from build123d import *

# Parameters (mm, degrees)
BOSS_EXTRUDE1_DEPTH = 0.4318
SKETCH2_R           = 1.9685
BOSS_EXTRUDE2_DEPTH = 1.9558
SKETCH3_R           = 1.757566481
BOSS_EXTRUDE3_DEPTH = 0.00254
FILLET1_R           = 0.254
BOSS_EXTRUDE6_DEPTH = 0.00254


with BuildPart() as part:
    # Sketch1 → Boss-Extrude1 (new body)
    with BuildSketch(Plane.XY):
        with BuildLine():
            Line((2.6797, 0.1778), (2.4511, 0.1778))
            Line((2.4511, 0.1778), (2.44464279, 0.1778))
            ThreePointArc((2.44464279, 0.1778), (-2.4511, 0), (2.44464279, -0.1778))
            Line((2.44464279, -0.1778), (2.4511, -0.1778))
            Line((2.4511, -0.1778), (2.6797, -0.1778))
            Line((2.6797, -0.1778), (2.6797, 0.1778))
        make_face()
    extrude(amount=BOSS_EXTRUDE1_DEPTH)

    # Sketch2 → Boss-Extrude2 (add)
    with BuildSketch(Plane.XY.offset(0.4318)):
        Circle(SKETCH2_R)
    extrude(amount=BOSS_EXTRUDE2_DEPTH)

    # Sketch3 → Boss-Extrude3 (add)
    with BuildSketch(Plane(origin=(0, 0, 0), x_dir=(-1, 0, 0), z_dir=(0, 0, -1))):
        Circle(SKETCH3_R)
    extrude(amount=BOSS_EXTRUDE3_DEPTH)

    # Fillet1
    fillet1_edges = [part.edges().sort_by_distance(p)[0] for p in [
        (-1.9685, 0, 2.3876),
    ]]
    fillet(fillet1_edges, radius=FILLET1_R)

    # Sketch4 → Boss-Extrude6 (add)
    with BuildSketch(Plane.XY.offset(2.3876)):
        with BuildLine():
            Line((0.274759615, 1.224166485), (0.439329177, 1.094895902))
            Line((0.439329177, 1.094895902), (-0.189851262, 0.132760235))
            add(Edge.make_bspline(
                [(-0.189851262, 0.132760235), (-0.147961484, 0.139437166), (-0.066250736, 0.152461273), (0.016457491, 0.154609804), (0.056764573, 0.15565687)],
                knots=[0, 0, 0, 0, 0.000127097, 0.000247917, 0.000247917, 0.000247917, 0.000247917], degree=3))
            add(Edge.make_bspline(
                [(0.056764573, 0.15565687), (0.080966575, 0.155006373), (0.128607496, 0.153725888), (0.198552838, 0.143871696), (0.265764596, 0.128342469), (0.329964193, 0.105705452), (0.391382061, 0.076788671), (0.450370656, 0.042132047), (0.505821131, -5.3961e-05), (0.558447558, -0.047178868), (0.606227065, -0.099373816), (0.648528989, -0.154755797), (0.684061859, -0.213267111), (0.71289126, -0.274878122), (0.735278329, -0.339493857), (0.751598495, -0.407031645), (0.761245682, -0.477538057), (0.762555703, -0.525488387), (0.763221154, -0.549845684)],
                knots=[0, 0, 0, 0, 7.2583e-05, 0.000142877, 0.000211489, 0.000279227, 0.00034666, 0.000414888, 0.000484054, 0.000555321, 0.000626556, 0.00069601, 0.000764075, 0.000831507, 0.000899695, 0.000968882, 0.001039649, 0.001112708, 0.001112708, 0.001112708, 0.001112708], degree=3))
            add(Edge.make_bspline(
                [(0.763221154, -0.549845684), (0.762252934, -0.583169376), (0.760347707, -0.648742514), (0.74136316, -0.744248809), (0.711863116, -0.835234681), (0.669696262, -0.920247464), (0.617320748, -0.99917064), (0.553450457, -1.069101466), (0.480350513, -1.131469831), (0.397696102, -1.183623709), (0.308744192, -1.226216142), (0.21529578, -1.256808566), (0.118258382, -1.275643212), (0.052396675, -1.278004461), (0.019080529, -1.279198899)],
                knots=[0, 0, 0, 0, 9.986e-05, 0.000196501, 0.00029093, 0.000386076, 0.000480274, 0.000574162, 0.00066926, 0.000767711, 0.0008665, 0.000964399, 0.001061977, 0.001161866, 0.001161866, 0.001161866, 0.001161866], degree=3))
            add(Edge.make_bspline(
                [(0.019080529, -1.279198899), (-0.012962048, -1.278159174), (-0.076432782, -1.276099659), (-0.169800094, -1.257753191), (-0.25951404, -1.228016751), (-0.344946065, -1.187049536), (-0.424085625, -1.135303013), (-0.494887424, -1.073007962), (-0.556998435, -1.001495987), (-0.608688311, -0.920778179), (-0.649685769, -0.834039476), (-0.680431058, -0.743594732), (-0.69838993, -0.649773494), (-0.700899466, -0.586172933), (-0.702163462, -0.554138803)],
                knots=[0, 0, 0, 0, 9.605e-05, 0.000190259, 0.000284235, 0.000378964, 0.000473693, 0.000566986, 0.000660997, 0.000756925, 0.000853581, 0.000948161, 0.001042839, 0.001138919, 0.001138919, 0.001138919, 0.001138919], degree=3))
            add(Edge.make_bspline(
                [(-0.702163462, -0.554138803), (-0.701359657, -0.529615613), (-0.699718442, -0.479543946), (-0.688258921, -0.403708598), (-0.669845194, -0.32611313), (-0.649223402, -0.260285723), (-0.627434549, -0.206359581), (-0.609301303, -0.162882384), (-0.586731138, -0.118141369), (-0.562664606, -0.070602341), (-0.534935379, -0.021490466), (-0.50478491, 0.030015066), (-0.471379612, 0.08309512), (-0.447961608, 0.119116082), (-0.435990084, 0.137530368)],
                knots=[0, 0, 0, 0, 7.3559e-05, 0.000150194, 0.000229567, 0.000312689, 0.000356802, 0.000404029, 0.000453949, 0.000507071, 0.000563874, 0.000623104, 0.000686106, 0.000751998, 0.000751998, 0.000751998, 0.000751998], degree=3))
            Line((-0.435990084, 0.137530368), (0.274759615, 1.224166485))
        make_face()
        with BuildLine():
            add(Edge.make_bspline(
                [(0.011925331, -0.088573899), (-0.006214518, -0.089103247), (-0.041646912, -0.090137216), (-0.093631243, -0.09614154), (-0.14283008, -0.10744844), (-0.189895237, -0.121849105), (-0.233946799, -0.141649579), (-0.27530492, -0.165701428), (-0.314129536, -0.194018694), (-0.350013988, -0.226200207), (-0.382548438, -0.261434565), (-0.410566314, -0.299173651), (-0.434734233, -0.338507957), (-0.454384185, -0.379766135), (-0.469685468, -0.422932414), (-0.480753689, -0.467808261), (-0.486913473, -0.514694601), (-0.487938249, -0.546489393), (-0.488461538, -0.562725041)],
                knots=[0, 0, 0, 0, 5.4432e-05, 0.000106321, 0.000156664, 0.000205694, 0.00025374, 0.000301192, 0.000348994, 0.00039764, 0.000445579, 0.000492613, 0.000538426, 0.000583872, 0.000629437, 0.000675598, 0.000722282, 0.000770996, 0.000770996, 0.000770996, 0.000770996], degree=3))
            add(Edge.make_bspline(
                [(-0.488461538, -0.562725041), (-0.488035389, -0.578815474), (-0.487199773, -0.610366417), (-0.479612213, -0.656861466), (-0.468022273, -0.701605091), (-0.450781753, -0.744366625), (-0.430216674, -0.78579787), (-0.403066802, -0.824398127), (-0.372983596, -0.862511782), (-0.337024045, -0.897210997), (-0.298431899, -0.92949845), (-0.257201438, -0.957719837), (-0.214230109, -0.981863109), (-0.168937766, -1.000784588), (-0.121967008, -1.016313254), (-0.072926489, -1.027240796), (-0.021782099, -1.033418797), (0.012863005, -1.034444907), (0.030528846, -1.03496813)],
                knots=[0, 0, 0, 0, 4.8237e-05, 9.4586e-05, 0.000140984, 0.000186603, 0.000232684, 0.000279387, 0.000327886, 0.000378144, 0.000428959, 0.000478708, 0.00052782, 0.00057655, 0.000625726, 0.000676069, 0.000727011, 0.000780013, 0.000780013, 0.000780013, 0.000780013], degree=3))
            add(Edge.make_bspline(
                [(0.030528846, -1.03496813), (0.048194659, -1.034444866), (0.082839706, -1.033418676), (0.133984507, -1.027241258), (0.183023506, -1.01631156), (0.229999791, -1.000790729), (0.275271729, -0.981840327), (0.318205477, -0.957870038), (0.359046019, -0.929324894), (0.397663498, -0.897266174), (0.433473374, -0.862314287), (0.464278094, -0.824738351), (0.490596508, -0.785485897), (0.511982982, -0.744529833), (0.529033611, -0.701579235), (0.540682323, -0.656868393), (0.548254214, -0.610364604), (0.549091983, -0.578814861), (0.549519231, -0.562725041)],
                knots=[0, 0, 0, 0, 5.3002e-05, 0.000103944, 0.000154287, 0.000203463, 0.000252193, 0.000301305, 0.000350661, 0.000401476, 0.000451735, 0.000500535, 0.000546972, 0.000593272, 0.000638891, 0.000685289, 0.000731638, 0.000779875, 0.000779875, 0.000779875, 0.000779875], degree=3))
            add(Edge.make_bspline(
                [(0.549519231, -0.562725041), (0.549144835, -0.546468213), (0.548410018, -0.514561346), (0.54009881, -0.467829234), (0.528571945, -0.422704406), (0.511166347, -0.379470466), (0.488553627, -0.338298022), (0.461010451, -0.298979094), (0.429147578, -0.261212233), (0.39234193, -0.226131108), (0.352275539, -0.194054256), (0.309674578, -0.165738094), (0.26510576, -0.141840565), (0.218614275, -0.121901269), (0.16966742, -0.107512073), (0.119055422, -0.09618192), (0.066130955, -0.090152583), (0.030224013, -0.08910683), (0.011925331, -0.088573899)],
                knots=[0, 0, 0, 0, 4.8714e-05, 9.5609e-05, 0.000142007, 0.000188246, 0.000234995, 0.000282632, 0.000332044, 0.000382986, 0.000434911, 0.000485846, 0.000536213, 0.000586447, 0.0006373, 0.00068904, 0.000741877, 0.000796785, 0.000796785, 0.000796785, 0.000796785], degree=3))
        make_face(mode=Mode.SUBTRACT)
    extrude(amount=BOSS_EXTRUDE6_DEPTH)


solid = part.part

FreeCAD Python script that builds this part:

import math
import FreeCAD as App
import Part
import Sketcher
Q = App.Units.Quantity


def edges_at(feature, points):
    """Names of the edges that pass closest to the given points."""
    edges = feature.Shape.Edges
    near = lambda p: min(range(len(edges)), key=lambda i: edges[i].distToShape(Part.Vertex(*p))[0])
    return sorted({f"Edge{near(p) + 1}" for p in points})

doc = App.newDocument("Part")
params = doc.addObject("Spreadsheet::Sheet", "Params")
for row, (alias, value) in enumerate([
    ("sketch1_height", "0.014 in"),
    ("pad1_length", "0.017 in"),
    ("sketch2_diameter", "0.155 in"),
    ("pad2_length", "0.077 in"),
    ("pad3_length", "0.0001 in"),
    ("fillet_radius", "0.01 in"),
    ("pad4_length", "0.0001 in"),
], start=1):
    params.set(f"A{row}", alias)
    params.set(f"B{row}", "=" + value)
    params.setAlias(f"B{row}", alias)

body = doc.addObject("PartDesign::Body", "Body")

# Sketch on XY plane
sketch1 = doc.addObject("Sketcher::SketchObject", "Sketch")
body.addObject(sketch1)
sketch1.AttachmentSupport = (doc.XY_Plane, [""])
sketch1.MapMode = "FlatFace"
sketch1.addGeometry(Part.LineSegment(App.Vector(2.6797, 0.1778, 0), App.Vector(2.444643, 0.1778, 0)), False)
sketch1.addGeometry(Part.ArcOfCircle(Part.Circle(App.Vector(0, 0, 0), App.Vector(0, 0, 1), 2.4511), math.radians(4.159824), math.radians(355.840176)), False)
sketch1.addGeometry(Part.LineSegment(App.Vector(2.444643, -0.1778, 0), App.Vector(2.6797, -0.1778, 0)), False)
sketch1.addGeometry(Part.LineSegment(App.Vector(2.6797, -0.1778, 0), App.Vector(2.6797, 0.1778, 0)), False)
sketch1.addConstraint(Sketcher.Constraint("Coincident", 0, 2, 1, 1))
sketch1.addConstraint(Sketcher.Constraint("Coincident", 1, 2, 2, 1))
sketch1.addConstraint(Sketcher.Constraint("Coincident", 2, 2, 3, 1))
sketch1.addConstraint(Sketcher.Constraint("Coincident", 3, 2, 0, 1))
sketch1.addConstraint(Sketcher.Constraint("Horizontal", 0))
sketch1.addConstraint(Sketcher.Constraint("Horizontal", 2))
sketch1.addConstraint(Sketcher.Constraint("Vertical", 3))
sketch1.addConstraint(Sketcher.Constraint("Coincident", 1, 3, -1, 1))
sketch1.addConstraint(Sketcher.Constraint("Vertical", 0, 2, 1, 2))
sketch1.addConstraint(Sketcher.Constraint("Radius", 1, Q("0.0965 in")))
sketch1.addConstraint(Sketcher.Constraint("DistanceY", 3, 1, 3, 2, Q("0.014 in")))
sketch1.addConstraint(Sketcher.Constraint("DistanceX", -1, 1, 2, 2, Q("0.1055 in")))
sketch1.setExpression("Constraints[10]", "Params.sketch1_height")
pad1 = doc.addObject("PartDesign::Pad", "Pad")
body.addObject(pad1)
pad1.Profile = sketch1
pad1.setExpression("Length", "Params.pad1_length")

# Sketch on XY plane
sketch2 = doc.addObject("Sketcher::SketchObject", "Sketch001")
body.addObject(sketch2)
sketch2.AttachmentSupport = (doc.XY_Plane, [""])
sketch2.MapMode = "FlatFace"
sketch2.AttachmentOffset = App.Placement(App.Vector(0, 0, 0.017 * 25.4), App.Rotation())
sketch2.addGeometry(Part.Circle(App.Vector(0, 0, 0), App.Vector(0, 0, 1), 1.9685), False)
sketch2.addConstraint(Sketcher.Constraint("Coincident", 0, 3, -1, 1))
sketch2.addConstraint(Sketcher.Constraint("Diameter", 0, Q("0.155 in")))
sketch2.setExpression("Constraints[1]", "Params.sketch2_diameter")
pad2 = doc.addObject("PartDesign::Pad", "Pad001")
body.addObject(pad2)
pad2.Profile = sketch2
pad2.setExpression("Length", "Params.pad2_length")

# Sketch on XY plane
sketch3 = doc.addObject("Sketcher::SketchObject", "Sketch002")
body.addObject(sketch3)
sketch3.AttachmentSupport = (doc.XY_Plane, [""])
sketch3.MapMode = "FlatFace"
sketch3.addGeometry(Part.Circle(App.Vector(0, 0, 0), App.Vector(0, 0, 1), 1.757566), False)
sketch3.addConstraint(Sketcher.Constraint("Coincident", 0, 3, -1, 1))
sketch3.addConstraint(Sketcher.Constraint("Diameter", 0, Q("3.515133 mm")))
pad3 = doc.addObject("PartDesign::Pad", "Pad002")
body.addObject(pad3)
pad3.Profile = sketch3
pad3.setExpression("Length", "Params.pad3_length")
pad3.Reversed = True
doc.recompute()

fillet = doc.addObject("PartDesign::Fillet", "Fillet")
body.addObject(fillet)
fillet.Base = (pad3, edges_at(pad3, [(-1.968, 0, 2.388)]))
fillet.setExpression("Radius", "Params.fillet_radius")

# Sketch on XY plane
sketch4 = doc.addObject("Sketcher::SketchObject", "Sketch003")
body.addObject(sketch4)
sketch4.AttachmentSupport = (doc.XY_Plane, [""])
sketch4.MapMode = "FlatFace"
sketch4.AttachmentOffset = App.Placement(App.Vector(0, 0, 0.094 * 25.4), App.Rotation())
sketch4.addGeometry(Part.LineSegment(App.Vector(0.439329, 1.094896, 0), App.Vector(0.27476, 1.224166, 0)), False)
sketch4.addGeometry(Part.LineSegment(App.Vector(0.27476, 1.224166, 0), App.Vector(-0.43599, 0.13753, 0)), False)
sketch4.addGeometry(Part.BSplineCurve([App.Vector(-0.702163, -0.554139, 0), App.Vector(-0.70136, -0.529616, 0), App.Vector(-0.699718, -0.479544, 0), App.Vector(-0.688259, -0.403709, 0), App.Vector(-0.669845, -0.326113, 0), App.Vector(-0.649223, -0.260286, 0), App.Vector(-0.627435, -0.20636, 0), App.Vector(-0.609301, -0.162882, 0), App.Vector(-0.586731, -0.118141, 0), App.Vector(-0.562665, -0.070602, 0), App.Vector(-0.534935, -0.02149, 0), App.Vector(-0.504785, 0.030015, 0), App.Vector(-0.47138, 0.083095, 0), App.Vector(-0.447962, 0.119116, 0), App.Vector(-0.43599, 0.13753, 0)], [4, 1, 1, 1, 1, 1, 1, 1, 1, 1, 1, 1, 4], [0, 0.000073559, 0.000150194, 0.000229567, 0.000312689, 0.000356802, 0.000404029, 0.000453949, 0.000507071, 0.000563874, 0.000623104, 0.000686106, 0.000751998], False, 3, [1, 1, 1, 1, 1, 1, 1, 1, 1, 1, 1, 1, 1, 1, 1], False), False)
sketch4.addGeometry(Part.BSplineCurve([App.Vector(0.019081, -1.279199, 0), App.Vector(-0.012962, -1.278159, 0), App.Vector(-0.076433, -1.2761, 0), App.Vector(-0.1698, -1.257753, 0), App.Vector(-0.259514, -1.228017, 0), App.Vector(-0.344946, -1.18705, 0), App.Vector(-0.424086, -1.135303, 0), App.Vector(-0.494887, -1.073008, 0), App.Vector(-0.556998, -1.001496, 0), App.Vector(-0.608688, -0.920778, 0), App.Vector(-0.649686, -0.834039, 0), App.Vector(-0.680431, -0.743595, 0), App.Vector(-0.69839, -0.649773, 0), App.Vector(-0.700899, -0.586173, 0), App.Vector(-0.702163, -0.554139, 0)], [4, 1, 1, 1, 1, 1, 1, 1, 1, 1, 1, 1, 4], [0, 0.00009605, 0.000190259, 0.000284235, 0.000378964, 0.000473693, 0.000566986, 0.000660997, 0.000756925, 0.000853581, 0.000948161, 0.001042839, 0.001138919], False, 3, [1, 1, 1, 1, 1, 1, 1, 1, 1, 1, 1, 1, 1, 1, 1], False), False)
sketch4.addGeometry(Part.BSplineCurve([App.Vector(0.763221, -0.549846, 0), App.Vector(0.762253, -0.583169, 0), App.Vector(0.760348, -0.648743, 0), App.Vector(0.741363, -0.744249, 0), App.Vector(0.711863, -0.835235, 0), App.Vector(0.669696, -0.920247, 0), App.Vector(0.617321, -0.999171, 0), App.Vector(0.55345, -1.069101, 0), App.Vector(0.480351, -1.13147, 0), App.Vector(0.397696, -1.183624, 0), App.Vector(0.308744, -1.226216, 0), App.Vector(0.215296, -1.256809, 0), App.Vector(0.118258, -1.275643, 0), App.Vector(0.052397, -1.278004, 0), App.Vector(0.019081, -1.279199, 0)], [4, 1, 1, 1, 1, 1, 1, 1, 1, 1, 1, 1, 4], [0, 0.00009986, 0.000196501, 0.00029093, 0.000386076, 0.000480274, 0.000574162, 0.00066926, 0.000767711, 0.0008665, 0.000964399, 0.001061977, 0.001161866], False, 3, [1, 1, 1, 1, 1, 1, 1, 1, 1, 1, 1, 1, 1, 1, 1], False), False)
sketch4.addGeometry(Part.BSplineCurve([App.Vector(0.056765, 0.155657, 0), App.Vector(0.080967, 0.155006, 0), App.Vector(0.128607, 0.153726, 0), App.Vector(0.198553, 0.143872, 0), App.Vector(0.265765, 0.128342, 0), App.Vector(0.329964, 0.105705, 0), App.Vector(0.391382, 0.076789, 0), App.Vector(0.450371, 0.042132, 0), App.Vector(0.505821, -0.000054, 0), App.Vector(0.558448, -0.047179, 0), App.Vector(0.606227, -0.099374, 0), App.Vector(0.648529, -0.154756, 0), App.Vector(0.684062, -0.213267, 0), App.Vector(0.712891, -0.274878, 0), App.Vector(0.735278, -0.339494, 0), App.Vector(0.751598, -0.407032, 0), App.Vector(0.761246, -0.477538, 0), App.Vector(0.762556, -0.525488, 0), App.Vector(0.763221, -0.549846, 0)], [4, 1, 1, 1, 1, 1, 1, 1, 1, 1, 1, 1, 1, 1, 1, 1, 4], [0, 0.000072583, 0.000142877, 0.000211489, 0.000279227, 0.00034666, 0.000414888, 0.000484054, 0.000555321, 0.000626556, 0.00069601, 0.000764075, 0.000831507, 0.000899695, 0.000968882, 0.001039649, 0.001112708], False, 3, [1, 1, 1, 1, 1, 1, 1, 1, 1, 1, 1, 1, 1, 1, 1, 1, 1, 1, 1], False), False)
sketch4.addGeometry(Part.BSplineCurve([App.Vector(-0.189851, 0.13276, 0), App.Vector(-0.147961, 0.139437, 0), App.Vector(-0.066251, 0.152461, 0), App.Vector(0.016457, 0.15461, 0), App.Vector(0.056765, 0.155657, 0)], [4, 1, 4], [0, 0.000127097, 0.000247917], False, 3, [1, 1, 1, 1, 1], False), False)
sketch4.addGeometry(Part.LineSegment(App.Vector(-0.189851, 0.13276, 0), App.Vector(0.439329, 1.094896, 0)), False)
sketch4.addGeometry(Part.BSplineCurve([App.Vector(0.549519, -0.562725, 0), App.Vector(0.549145, -0.546468, 0), App.Vector(0.54841, -0.514561, 0), App.Vector(0.540099, -0.467829, 0), App.Vector(0.528572, -0.422704, 0), App.Vector(0.511166, -0.37947, 0), App.Vector(0.488554, -0.338298, 0), App.Vector(0.46101, -0.298979, 0), App.Vector(0.429148, -0.261212, 0), App.Vector(0.392342, -0.226131, 0), App.Vector(0.352276, -0.194054, 0), App.Vector(0.309675, -0.165738, 0), App.Vector(0.265106, -0.141841, 0), App.Vector(0.218614, -0.121901, 0), App.Vector(0.169667, -0.107512, 0), App.Vector(0.119055, -0.096182, 0), App.Vector(0.066131, -0.090153, 0), App.Vector(0.030224, -0.089107, 0), App.Vector(0.011925, -0.088574, 0)], [4, 1, 1, 1, 1, 1, 1, 1, 1, 1, 1, 1, 1, 1, 1, 1, 4], [0, 0.000048714, 0.000095609, 0.000142007, 0.000188246, 0.000234995, 0.000282632, 0.000332044, 0.000382986, 0.000434911, 0.000485846, 0.000536213, 0.000586447, 0.0006373, 0.00068904, 0.000741877, 0.000796785], False, 3, [1, 1, 1, 1, 1, 1, 1, 1, 1, 1, 1, 1, 1, 1, 1, 1, 1, 1, 1], False), False)
sketch4.addGeometry(Part.BSplineCurve([App.Vector(0.030529, -1.034968, 0), App.Vector(0.048195, -1.034445, 0), App.Vector(0.08284, -1.033419, 0), App.Vector(0.133985, -1.027241, 0), App.Vector(0.183024, -1.016312, 0), App.Vector(0.23, -1.000791, 0), App.Vector(0.275272, -0.98184, 0), App.Vector(0.318205, -0.95787, 0), App.Vector(0.359046, -0.929325, 0), App.Vector(0.397663, -0.897266, 0), App.Vector(0.433473, -0.862314, 0), App.Vector(0.464278, -0.824738, 0), App.Vector(0.490597, -0.785486, 0), App.Vector(0.511983, -0.74453, 0), App.Vector(0.529034, -0.701579, 0), App.Vector(0.540682, -0.656868, 0), App.Vector(0.548254, -0.610365, 0), App.Vector(0.549092, -0.578815, 0), App.Vector(0.549519, -0.562725, 0)], [4, 1, 1, 1, 1, 1, 1, 1, 1, 1, 1, 1, 1, 1, 1, 1, 4], [0, 0.000053002, 0.000103944, 0.000154287, 0.000203463, 0.000252193, 0.000301305, 0.000350661, 0.000401476, 0.000451735, 0.000500535, 0.000546972, 0.000593272, 0.000638891, 0.000685289, 0.000731638, 0.000779875], False, 3, [1, 1, 1, 1, 1, 1, 1, 1, 1, 1, 1, 1, 1, 1, 1, 1, 1, 1, 1], False), False)
sketch4.addGeometry(Part.BSplineCurve([App.Vector(-0.488462, -0.562725, 0), App.Vector(-0.488035, -0.578815, 0), App.Vector(-0.4872, -0.610366, 0), App.Vector(-0.479612, -0.656861, 0), App.Vector(-0.468022, -0.701605, 0), App.Vector(-0.450782, -0.744367, 0), App.Vector(-0.430217, -0.785798, 0), App.Vector(-0.403067, -0.824398, 0), App.Vector(-0.372984, -0.862512, 0), App.Vector(-0.337024, -0.897211, 0), App.Vector(-0.298432, -0.929498, 0), App.Vector(-0.257201, -0.95772, 0), App.Vector(-0.21423, -0.981863, 0), App.Vector(-0.168938, -1.000785, 0), App.Vector(-0.121967, -1.016313, 0), App.Vector(-0.072926, -1.027241, 0), App.Vector(-0.021782, -1.033419, 0), App.Vector(0.012863, -1.034445, 0), App.Vector(0.030529, -1.034968, 0)], [4, 1, 1, 1, 1, 1, 1, 1, 1, 1, 1, 1, 1, 1, 1, 1, 4], [0, 0.000048237, 0.000094586, 0.000140984, 0.000186603, 0.000232684, 0.000279387, 0.000327886, 0.000378144, 0.000428959, 0.000478708, 0.00052782, 0.00057655, 0.000625726, 0.000676069, 0.000727011, 0.000780013], False, 3, [1, 1, 1, 1, 1, 1, 1, 1, 1, 1, 1, 1, 1, 1, 1, 1, 1, 1, 1], False), False)
sketch4.addGeometry(Part.BSplineCurve([App.Vector(0.011925, -0.088574, 0), App.Vector(-0.006215, -0.089103, 0), App.Vector(-0.041647, -0.090137, 0), App.Vector(-0.093631, -0.096142, 0), App.Vector(-0.14283, -0.107448, 0), App.Vector(-0.189895, -0.121849, 0), App.Vector(-0.233947, -0.14165, 0), App.Vector(-0.275305, -0.165701, 0), App.Vector(-0.31413, -0.194019, 0), App.Vector(-0.350014, -0.2262, 0), App.Vector(-0.382548, -0.261435, 0), App.Vector(-0.410566, -0.299174, 0), App.Vector(-0.434734, -0.338508, 0), App.Vector(-0.454384, -0.379766, 0), App.Vector(-0.469685, -0.422932, 0), App.Vector(-0.480754, -0.467808, 0), App.Vector(-0.486913, -0.514695, 0), App.Vector(-0.487938, -0.546489, 0), App.Vector(-0.488462, -0.562725, 0)], [4, 1, 1, 1, 1, 1, 1, 1, 1, 1, 1, 1, 1, 1, 1, 1, 4], [0, 0.000054432, 0.000106321, 0.000156664, 0.000205694, 0.00025374, 0.000301192, 0.000348994, 0.00039764, 0.000445579, 0.000492613, 0.000538426, 0.000583872, 0.000629437, 0.000675598, 0.000722282, 0.000770996], False, 3, [1, 1, 1, 1, 1, 1, 1, 1, 1, 1, 1, 1, 1, 1, 1, 1, 1, 1, 1], False), False)
sketch4.addConstraint(Sketcher.Constraint("Block", 2))
sketch4.addConstraint(Sketcher.Constraint("Block", 3))
sketch4.addConstraint(Sketcher.Constraint("Block", 4))
sketch4.addConstraint(Sketcher.Constraint("Block", 5))
sketch4.addConstraint(Sketcher.Constraint("Block", 6))
sketch4.addConstraint(Sketcher.Constraint("Block", 8))
sketch4.addConstraint(Sketcher.Constraint("Block", 9))
sketch4.addConstraint(Sketcher.Constraint("Block", 10))
sketch4.addConstraint(Sketcher.Constraint("Block", 11))
sketch4.addConstraint(Sketcher.Constraint("Coincident", 0, 2, 1, 1))
sketch4.addConstraint(Sketcher.Constraint("Coincident", 1, 2, 2, 2))
sketch4.addConstraint(Sketcher.Constraint("Coincident", 6, 1, 7, 1))
sketch4.addConstraint(Sketcher.Constraint("Coincident", 7, 2, 0, 1))
sketch4.addConstraint(Sketcher.Constraint("Distance", 0, Q("0.20927 mm")))
sketch4.addConstraint(Sketcher.Constraint("Distance", 1, Q("1.298439 mm")))
sketch4.addConstraint(Sketcher.Constraint("DistanceX", -1, 1, 0, 2, Q("0.27476 mm")))
sketch4.addConstraint(Sketcher.Constraint("DistanceX", -1, 1, 7, 2, Q("0.439329 mm")))
pad4 = doc.addObject("PartDesign::Pad", "Pad003")
body.addObject(pad4)
pad4.Profile = sketch4
pad4.setExpression("Length", "Params.pad4_length")

doc.recompute()
